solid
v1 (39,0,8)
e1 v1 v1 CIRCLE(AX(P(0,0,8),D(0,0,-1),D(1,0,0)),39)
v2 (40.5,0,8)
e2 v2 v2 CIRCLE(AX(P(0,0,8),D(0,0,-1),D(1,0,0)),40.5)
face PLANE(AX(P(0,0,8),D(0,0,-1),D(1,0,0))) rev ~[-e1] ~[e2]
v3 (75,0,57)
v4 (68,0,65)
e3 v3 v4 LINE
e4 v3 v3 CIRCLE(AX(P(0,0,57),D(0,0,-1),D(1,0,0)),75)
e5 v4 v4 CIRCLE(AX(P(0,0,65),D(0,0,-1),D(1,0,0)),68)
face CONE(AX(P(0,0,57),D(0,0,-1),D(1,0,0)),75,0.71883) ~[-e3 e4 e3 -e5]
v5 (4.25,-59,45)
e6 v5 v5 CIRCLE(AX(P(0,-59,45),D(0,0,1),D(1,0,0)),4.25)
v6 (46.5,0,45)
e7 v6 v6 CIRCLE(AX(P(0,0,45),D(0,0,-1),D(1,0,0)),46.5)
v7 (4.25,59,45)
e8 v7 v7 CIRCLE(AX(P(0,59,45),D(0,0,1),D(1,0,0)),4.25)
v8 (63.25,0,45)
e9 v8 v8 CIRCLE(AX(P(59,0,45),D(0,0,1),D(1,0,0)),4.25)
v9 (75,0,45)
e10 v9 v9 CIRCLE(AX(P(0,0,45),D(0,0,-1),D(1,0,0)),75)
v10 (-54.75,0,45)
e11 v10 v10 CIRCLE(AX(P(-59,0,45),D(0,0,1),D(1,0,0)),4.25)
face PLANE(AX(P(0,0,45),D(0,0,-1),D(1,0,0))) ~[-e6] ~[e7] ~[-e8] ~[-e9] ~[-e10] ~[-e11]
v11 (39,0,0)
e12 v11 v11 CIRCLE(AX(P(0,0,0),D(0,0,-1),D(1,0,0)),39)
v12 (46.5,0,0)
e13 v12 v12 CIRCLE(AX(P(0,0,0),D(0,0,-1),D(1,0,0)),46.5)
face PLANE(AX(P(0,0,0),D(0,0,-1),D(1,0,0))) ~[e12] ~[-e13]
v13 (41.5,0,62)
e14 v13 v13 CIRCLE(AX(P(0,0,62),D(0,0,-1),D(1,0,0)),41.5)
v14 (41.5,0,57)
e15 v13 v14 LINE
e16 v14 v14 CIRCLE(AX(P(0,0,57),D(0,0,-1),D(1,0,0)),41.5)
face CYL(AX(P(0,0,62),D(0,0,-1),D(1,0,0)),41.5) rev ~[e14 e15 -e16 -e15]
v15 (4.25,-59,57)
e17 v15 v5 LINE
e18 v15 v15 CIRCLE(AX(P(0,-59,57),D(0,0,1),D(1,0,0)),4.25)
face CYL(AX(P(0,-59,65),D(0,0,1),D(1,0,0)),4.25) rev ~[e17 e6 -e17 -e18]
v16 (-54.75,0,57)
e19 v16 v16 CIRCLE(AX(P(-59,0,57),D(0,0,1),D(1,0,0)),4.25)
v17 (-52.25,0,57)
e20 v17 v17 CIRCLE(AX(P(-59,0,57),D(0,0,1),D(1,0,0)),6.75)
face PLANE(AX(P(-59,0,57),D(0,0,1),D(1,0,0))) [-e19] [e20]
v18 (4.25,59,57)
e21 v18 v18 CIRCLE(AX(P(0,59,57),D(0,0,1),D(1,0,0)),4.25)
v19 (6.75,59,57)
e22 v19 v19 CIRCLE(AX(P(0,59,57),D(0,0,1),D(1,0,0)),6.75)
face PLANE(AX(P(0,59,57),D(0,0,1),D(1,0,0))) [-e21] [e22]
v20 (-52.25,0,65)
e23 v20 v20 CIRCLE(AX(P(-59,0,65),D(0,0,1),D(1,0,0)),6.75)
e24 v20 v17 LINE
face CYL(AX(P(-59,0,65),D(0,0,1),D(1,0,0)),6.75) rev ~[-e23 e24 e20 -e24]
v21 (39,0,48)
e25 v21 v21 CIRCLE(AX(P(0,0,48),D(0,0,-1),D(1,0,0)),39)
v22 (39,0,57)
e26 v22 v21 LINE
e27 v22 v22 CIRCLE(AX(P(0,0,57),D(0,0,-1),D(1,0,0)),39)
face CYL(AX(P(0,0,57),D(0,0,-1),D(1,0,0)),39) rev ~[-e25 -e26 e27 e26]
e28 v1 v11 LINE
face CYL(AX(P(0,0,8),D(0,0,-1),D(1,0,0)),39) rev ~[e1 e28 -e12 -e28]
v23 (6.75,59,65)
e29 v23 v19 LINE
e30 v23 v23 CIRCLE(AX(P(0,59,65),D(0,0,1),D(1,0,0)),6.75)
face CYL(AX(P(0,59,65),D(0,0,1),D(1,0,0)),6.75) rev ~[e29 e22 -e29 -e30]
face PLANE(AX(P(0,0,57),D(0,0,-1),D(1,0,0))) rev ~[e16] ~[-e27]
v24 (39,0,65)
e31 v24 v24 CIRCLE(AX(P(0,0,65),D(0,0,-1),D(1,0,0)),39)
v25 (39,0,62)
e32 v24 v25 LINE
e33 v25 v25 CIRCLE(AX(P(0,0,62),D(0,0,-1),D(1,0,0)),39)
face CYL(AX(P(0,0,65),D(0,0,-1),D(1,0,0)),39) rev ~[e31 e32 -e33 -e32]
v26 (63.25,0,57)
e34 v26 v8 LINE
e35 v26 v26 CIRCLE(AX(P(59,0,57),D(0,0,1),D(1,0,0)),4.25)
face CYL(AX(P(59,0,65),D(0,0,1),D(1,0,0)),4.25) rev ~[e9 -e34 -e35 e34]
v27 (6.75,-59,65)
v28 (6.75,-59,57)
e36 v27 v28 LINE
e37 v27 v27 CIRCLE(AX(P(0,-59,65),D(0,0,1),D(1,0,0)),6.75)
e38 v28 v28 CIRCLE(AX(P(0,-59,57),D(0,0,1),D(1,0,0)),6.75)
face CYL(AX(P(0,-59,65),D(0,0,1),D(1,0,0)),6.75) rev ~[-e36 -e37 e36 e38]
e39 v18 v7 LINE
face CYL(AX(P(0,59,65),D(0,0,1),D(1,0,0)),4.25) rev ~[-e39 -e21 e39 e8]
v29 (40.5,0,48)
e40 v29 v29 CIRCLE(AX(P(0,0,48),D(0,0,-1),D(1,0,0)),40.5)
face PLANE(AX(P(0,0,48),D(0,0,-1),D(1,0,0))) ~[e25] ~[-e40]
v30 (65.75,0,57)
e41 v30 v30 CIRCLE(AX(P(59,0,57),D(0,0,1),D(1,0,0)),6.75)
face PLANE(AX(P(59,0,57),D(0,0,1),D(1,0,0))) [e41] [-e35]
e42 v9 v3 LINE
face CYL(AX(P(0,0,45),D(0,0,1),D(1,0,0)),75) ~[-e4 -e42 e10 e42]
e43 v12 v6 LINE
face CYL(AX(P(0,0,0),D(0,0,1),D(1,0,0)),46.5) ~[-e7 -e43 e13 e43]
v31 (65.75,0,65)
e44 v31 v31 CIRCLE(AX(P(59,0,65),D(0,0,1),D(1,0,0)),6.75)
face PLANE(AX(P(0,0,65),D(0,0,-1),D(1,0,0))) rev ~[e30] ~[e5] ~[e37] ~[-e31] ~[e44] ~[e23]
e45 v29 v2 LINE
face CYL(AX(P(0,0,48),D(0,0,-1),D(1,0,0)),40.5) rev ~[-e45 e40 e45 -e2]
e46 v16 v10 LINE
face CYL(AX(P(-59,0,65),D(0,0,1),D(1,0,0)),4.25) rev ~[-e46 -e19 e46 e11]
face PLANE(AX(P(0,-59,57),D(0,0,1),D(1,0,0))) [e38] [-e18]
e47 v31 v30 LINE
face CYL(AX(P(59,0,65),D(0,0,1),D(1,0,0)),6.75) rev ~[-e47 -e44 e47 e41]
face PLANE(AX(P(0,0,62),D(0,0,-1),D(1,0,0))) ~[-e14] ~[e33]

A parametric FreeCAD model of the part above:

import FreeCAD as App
import Part
import Sketcher
from FreeCAD import Vector


def add_polygon(sketch, points):
    """Adds a closed chain of lines whose ends are joined by coincident constraints."""
    first, n = sketch.GeometryCount, len(points)
    for a, b in zip(points, points[1:] + points[:1]):
        sketch.addGeometry(Part.LineSegment(App.Vector(*a, 0), App.Vector(*b, 0)), False)
    for i in range(n):
        sketch.addConstraint(Sketcher.Constraint("Coincident", first + i, 2, first + (i + 1) % n, 1))

doc = App.newDocument("Part")
body = doc.addObject("PartDesign::Body", "Body")

# Sketch on XZ plane
sketch1 = doc.addObject("Sketcher::SketchObject", "Sketch")
body.addObject(sketch1)
sketch1.AttachmentSupport = (doc.XZ_Plane, [""])
sketch1.MapMode = "FlatFace"
add_polygon(sketch1, [(75, 57), (68, 65), (39, 65), (39, 62), (41.5, 62), (41.5, 57), (39, 57), (39, 48), (40.5, 48), (40.5, 8), (39, 8), (39, 0), (46.5, 0), (46.5, 45), (75, 45)])  # lines 0-14
sketch1.addConstraint([
    Sketcher.Constraint("Horizontal", 1),
    Sketcher.Constraint("Vertical", 2),
    Sketcher.Constraint("Horizontal", 3),
    Sketcher.Constraint("Vertical", 4),
    Sketcher.Constraint("Horizontal", 5),
    Sketcher.Constraint("Vertical", 6),
    Sketcher.Constraint("Horizontal", 7),
    Sketcher.Constraint("Vertical", 8),
    Sketcher.Constraint("Horizontal", 9),
    Sketcher.Constraint("Vertical", 10),
    Sketcher.Constraint("Horizontal", 11),
    Sketcher.Constraint("Vertical", 12),
    Sketcher.Constraint("Horizontal", 13),
    Sketcher.Constraint("Vertical", 14),
    Sketcher.Constraint("PointOnObject", 10, 2, -1),
    Sketcher.Constraint("Horizontal", 5, 2, 14, 2),
    Sketcher.Constraint("Vertical", 2, 2, 5, 2),
    Sketcher.Constraint("Vertical", 6, 2, 9, 2),
    Sketcher.Constraint("DistanceX", 1, 2, 1, 1, 29.0),
    Sketcher.Constraint("DistanceY", 2, 2, 2, 1, 3.0),
    Sketcher.Constraint("DistanceY", 4, 2, 4, 1, 5.0),
    Sketcher.Constraint("DistanceY", 6, 2, 6, 1, 9.0),
    Sketcher.Constraint("DistanceY", 8, 2, 8, 1, 40.0),
    Sketcher.Constraint("DistanceY", 10, 2, 10, 1, 8.0),
    Sketcher.Constraint("DistanceY", 12, 1, 12, 2, 45.0),
    Sketcher.Constraint("DistanceX", 3, 1, 3, 2, 2.5),
    Sketcher.Constraint("DistanceX", 7, 1, 7, 2, 1.5),
    Sketcher.Constraint("DistanceX", 11, 1, 11, 2, 7.5),
    Sketcher.Constraint("DistanceX", 13, 1, 13, 2, 28.5),
    Sketcher.Constraint("DistanceX", -1, 1, 0, 2, 68.0),
])
revolution = doc.addObject("PartDesign::Revolution", "Revolution")
body.addObject(revolution)
revolution.Profile = sketch1
revolution.ReferenceAxis = (sketch1, ["V_Axis"])
revolution.Angle = 360

# Sketch on XY plane
sketch2 = doc.addObject("Sketcher::SketchObject", "Sketch001")
body.addObject(sketch2)
sketch2.AttachmentSupport = (doc.XY_Plane, [""])
sketch2.MapMode = "FlatFace"
sketch2.AttachmentOffset = App.Placement(Vector(0, 0, 65), App.Rotation())
sketch2.addGeometry([
    Part.Circle(Vector(0, 59, 0), Vector(0, 0, 1), 4.2),
    Part.Circle(Vector(-59, 0, 0), Vector(0, 0, 1), 4.2),
    Part.Circle(Vector(0, -59, 0), Vector(0, 0, 1), 4.2),
    Part.Circle(Vector(59, 0, 0), Vector(0, 0, 1), 4.2),
], False)
sketch2.addConstraint([
    Sketcher.Constraint("Equal", 0, 1),
    Sketcher.Constraint("Equal", 1, 2),
    Sketcher.Constraint("Equal", 2, 3),
    Sketcher.Constraint("Symmetric", 0, 3, 2, 3, -1, 1),
    Sketcher.Constraint("Symmetric", 1, 3, 3, 3, -1, 1),
    Sketcher.Constraint("PointOnObject", 0, 3, -2),
    Sketcher.Constraint("PointOnObject", 1, 3, -1),
    Sketcher.Constraint("Diameter", 0, 8.5),
    Sketcher.Constraint("DistanceY", -1, 1, 0, 3, 59.0),
    Sketcher.Constraint("DistanceX", 1, 3, -1, 1, 59.0),
])
pocket1 = doc.addObject("PartDesign::Pocket", "Pocket")
body.addObject(pocket1)
pocket1.Profile = sketch2
pocket1.Length = 25

# Sketch on XY plane
sketch3 = doc.addObject("Sketcher::SketchObject", "Sketch002")
body.addObject(sketch3)
sketch3.AttachmentSupport = (doc.XY_Plane, [""])
sketch3.MapMode = "FlatFace"
sketch3.AttachmentOffset = App.Placement(Vector(0, 0, 65), App.Rotation())
sketch3.addGeometry([
    Part.Circle(Vector(0, 59, 0), Vector(0, 0, 1), 6.8),
    Part.Circle(Vector(0, 59, 0), Vector(0, 0, 1), 4.2),
], False)
sketch3.addConstraint([
    Sketcher.Constraint("Coincident", 1, 3, 0, 3),
    Sketcher.Constraint("PointOnObject", 0, 3, -2),
    Sketcher.Constraint("Diameter", 0, 13.5),
    Sketcher.Constraint("Diameter", 1, 8.5),
    Sketcher.Constraint("DistanceY", -1, 1, 0, 3, 59.0),
])
pocket2 = doc.addObject("PartDesign::Pocket", "Pocket001")
body.addObject(pocket2)
pocket2.Profile = sketch3
pocket2.Length = 8

# Sketch on XY plane
sketch4 = doc.addObject("Sketcher::SketchObject", "Sketch003")
body.addObject(sketch4)
sketch4.AttachmentSupport = (doc.XY_Plane, [""])
sketch4.MapMode = "FlatFace"
sketch4.AttachmentOffset = App.Placement(Vector(0, 0, 65), App.Rotation())
sketch4.addGeometry([
    Part.Circle(Vector(-59, 0, 0), Vector(0, 0, 1), 6.8),  # 0
    Part.Circle(Vector(-59, 0, 0), Vector(0, 0, 1), 4.2),  # 1
    Part.Circle(Vector(59, 0, 0), Vector(0, 0, 1), 6.8),  # 2
    Part.Circle(Vector(59, 0, 0), Vector(0, 0, 1), 4.2),  # 3
    Part.Circle(Vector(0, -59, 0), Vector(0, 0, 1), 6.8),  # 4
    Part.Circle(Vector(0, -59, 0), Vector(0, 0, 1), 4.2),  # 5
], False)
sketch4.addConstraint([
    Sketcher.Constraint("Coincident", 1, 3, 0, 3),
    Sketcher.Constraint("Coincident", 3, 3, 2, 3),
    Sketcher.Constraint("Coincident", 5, 3, 4, 3),
    Sketcher.Constraint("Equal", 0, 2),
    Sketcher.Constraint("Equal", 1, 3),
    Sketcher.Constraint("Equal", 2, 4),
    Sketcher.Constraint("Equal", 3, 5),
    Sketcher.Constraint("Symmetric", 0, 3, 2, 3, -1, 1),
    Sketcher.Constraint("PointOnObject", 0, 3, -1),
    Sketcher.Constraint("PointOnObject", 4, 3, -2),
    Sketcher.Constraint("Diameter", 0, 13.5),
    Sketcher.Constraint("Diameter", 1, 8.5),
    Sketcher.Constraint("DistanceX", 0, 3, -1, 1, 59.0),
    Sketcher.Constraint("DistanceY", 4, 3, -1, 1, 59.0),
])
pocket3 = doc.addObject("PartDesign::Pocket", "Pocket002")
body.addObject(pocket3)
pocket3.Profile = sketch4
pocket3.Length = 8

# Sketch on XY plane
sketch5 = doc.addObject("Sketcher::SketchObject", "Sketch004")
body.addObject(sketch5)
sketch5.AttachmentSupport = (doc.XY_Plane, [""])
sketch5.MapMode = "FlatFace"
sketch5.AttachmentOffset = App.Placement(Vector(0, 0, 65), App.Rotation())
sketch5.addGeometry([
    Part.Circle(Vector(0, -59, 0), Vector(0, 0, 1), 6.8),
    Part.Circle(Vector(0, -59, 0), Vector(0, 0, 1), 4.2),
], False)
sketch5.addConstraint([
    Sketcher.Constraint("Coincident", 1, 3, 0, 3),
    Sketcher.Constraint("PointOnObject", 0, 3, -2),
    Sketcher.Constraint("Diameter", 0, 13.5),
    Sketcher.Constraint("Diameter", 1, 8.5),
    Sketcher.Constraint("DistanceY", 0, 3, -1, 1, 59.0),
])
pocket4 = doc.addObject("PartDesign::Pocket", "Pocket003")
body.addObject(pocket4)
pocket4.Profile = sketch5
pocket4.Length = 8

doc.recompute()
